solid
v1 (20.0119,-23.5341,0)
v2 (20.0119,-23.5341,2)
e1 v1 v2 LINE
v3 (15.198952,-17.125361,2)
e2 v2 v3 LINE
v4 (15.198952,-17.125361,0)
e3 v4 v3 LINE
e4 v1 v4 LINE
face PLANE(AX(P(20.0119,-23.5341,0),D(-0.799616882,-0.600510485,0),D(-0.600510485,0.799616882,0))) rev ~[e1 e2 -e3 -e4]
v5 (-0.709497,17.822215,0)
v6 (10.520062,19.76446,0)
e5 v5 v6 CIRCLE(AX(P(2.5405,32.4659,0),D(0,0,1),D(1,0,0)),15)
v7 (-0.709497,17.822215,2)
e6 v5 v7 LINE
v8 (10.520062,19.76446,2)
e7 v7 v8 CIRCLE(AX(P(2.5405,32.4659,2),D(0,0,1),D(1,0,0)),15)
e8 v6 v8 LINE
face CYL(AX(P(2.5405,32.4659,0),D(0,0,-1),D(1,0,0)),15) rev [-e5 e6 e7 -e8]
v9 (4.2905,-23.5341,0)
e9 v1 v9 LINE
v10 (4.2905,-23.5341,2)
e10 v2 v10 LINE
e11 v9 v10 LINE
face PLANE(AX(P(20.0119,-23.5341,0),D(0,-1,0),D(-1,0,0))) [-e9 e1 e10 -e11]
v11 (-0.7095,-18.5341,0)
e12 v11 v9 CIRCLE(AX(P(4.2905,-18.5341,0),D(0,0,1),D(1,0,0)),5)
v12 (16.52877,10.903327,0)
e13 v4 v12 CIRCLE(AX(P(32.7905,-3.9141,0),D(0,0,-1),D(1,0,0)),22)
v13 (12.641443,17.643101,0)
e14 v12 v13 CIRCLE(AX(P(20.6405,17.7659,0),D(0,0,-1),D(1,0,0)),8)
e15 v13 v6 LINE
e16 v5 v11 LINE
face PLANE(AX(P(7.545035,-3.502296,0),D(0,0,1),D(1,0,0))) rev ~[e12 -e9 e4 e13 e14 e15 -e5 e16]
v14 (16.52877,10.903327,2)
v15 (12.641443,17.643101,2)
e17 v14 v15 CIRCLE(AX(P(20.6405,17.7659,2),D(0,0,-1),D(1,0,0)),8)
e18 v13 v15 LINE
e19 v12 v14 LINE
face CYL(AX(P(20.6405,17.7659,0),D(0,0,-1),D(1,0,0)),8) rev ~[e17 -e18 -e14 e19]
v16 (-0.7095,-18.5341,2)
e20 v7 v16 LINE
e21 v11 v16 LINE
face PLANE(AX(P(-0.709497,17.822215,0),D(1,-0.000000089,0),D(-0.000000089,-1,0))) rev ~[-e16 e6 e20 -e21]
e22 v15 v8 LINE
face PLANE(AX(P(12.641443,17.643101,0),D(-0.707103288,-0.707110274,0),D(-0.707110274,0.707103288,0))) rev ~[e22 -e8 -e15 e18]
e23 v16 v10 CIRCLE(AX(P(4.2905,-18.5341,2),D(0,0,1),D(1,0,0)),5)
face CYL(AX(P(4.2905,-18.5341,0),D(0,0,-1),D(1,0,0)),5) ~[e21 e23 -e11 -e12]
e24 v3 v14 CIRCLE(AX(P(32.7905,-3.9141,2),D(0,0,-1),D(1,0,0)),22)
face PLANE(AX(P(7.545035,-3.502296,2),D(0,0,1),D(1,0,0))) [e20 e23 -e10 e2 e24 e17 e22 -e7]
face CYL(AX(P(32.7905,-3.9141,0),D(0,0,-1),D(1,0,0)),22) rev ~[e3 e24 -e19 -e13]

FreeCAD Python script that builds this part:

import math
import FreeCAD as App
import Part
import Sketcher

V = App.Vector
Q = App.Units.Quantity

doc = App.newDocument("Part")
body = doc.addObject("PartDesign::Body", "Body")

# Sketch on XY plane
sketch1 = body.newObject("Sketcher::SketchObject", "Sketch")
sketch1.AttachmentSupport = (doc.getObject("XY_Plane"), [""])
sketch1.MapMode = "FlatFace"
sketch1.addGeometry(Part.LineSegment(V(20, -23.5, 0), V(15.2, -17.1, 0)), False)
sketch1.addGeometry(Part.ArcOfCircle(Part.Circle(V(32.8, -3.9, 0), V(0, 0, 1), 22), math.radians(138), math.radians(217)), False)
sketch1.addGeometry(Part.ArcOfCircle(Part.Circle(V(20.6, 17.8, 0), V(0, 0, 1), 8), math.radians(-179), math.radians(-121)), False)
sketch1.addGeometry(Part.LineSegment(V(12.6, 17.6, 0), V(10.5, 19.8, 0)), False)
sketch1.addGeometry(Part.ArcOfCircle(Part.Circle(V(2.5, 32.5, 0), V(0, 0, 1), 15), math.radians(-103), math.radians(-58)), False)
sketch1.addGeometry(Part.LineSegment(V(-0.7, 17.8, 0), V(-0.7, -18.5, 0)), False)
sketch1.addGeometry(Part.ArcOfCircle(Part.Circle(V(4.3, -18.5, 0), V(0, 0, 1), 5), math.radians(180), math.radians(270)), False)
sketch1.addGeometry(Part.LineSegment(V(4.3, -23.5, 0), V(20, -23.5, 0)), False)
sketch1.addConstraint(Sketcher.Constraint("Tangent", 0, 2, 1, 2))
sketch1.addConstraint(Sketcher.Constraint("Coincident", 1, 1, 2, 2))
sketch1.addConstraint(Sketcher.Constraint("Coincident", 2, 1, 3, 1))
sketch1.addConstraint(Sketcher.Constraint("Coincident", 3, 2, 4, 2))
sketch1.addConstraint(Sketcher.Constraint("Coincident", 4, 1, 5, 1))
sketch1.addConstraint(Sketcher.Constraint("Tangent", 5, 2, 6, 1))
sketch1.addConstraint(Sketcher.Constraint("Tangent", 6, 2, 7, 1))
sketch1.addConstraint(Sketcher.Constraint("Coincident", 7, 2, 0, 1))
sketch1.addConstraint(Sketcher.Constraint("Vertical", 5))
sketch1.addConstraint(Sketcher.Constraint("Horizontal", 7))
sketch1.addConstraint(Sketcher.Constraint("Radius", 1, Q("22 mm")))
sketch1.addConstraint(Sketcher.Constraint("Radius", 2, Q("8 mm")))
sketch1.addConstraint(Sketcher.Constraint("Radius", 4, Q("15 mm")))
sketch1.addConstraint(Sketcher.Constraint("Radius", 6, Q("5 mm")))
sketch1.addConstraint(Sketcher.Constraint("Angle", 3, Q("135 deg")))
sketch1.addConstraint(Sketcher.Constraint("Distance", 3, Q("3 mm")))
sketch1.addConstraint(Sketcher.Constraint("DistanceY", 6, 3, 4, 3, Q("51 mm")))
sketch1.addConstraint(Sketcher.Constraint("DistanceX", -1, 1, 1, 3, Q("32.7905 mm")))
sketch1.addConstraint(Sketcher.Constraint("DistanceX", -1, 1, 2, 1, Q("12.6414 mm")))
sketch1.addConstraint(Sketcher.Constraint("DistanceX", 4, 3, 2, 3, Q("18.1 mm")))
sketch1.addConstraint(Sketcher.Constraint("DistanceY", 2, 3, 4, 3, Q("14.7 mm")))
sketch1.addConstraint(Sketcher.Constraint("DistanceX", 6, 3, 1, 3, Q("28.5 mm")))
sketch1.addConstraint(Sketcher.Constraint("DistanceY", 1, 3, 2, 3, Q("21.68 mm")))
sketch1.addConstraint(Sketcher.Constraint("DistanceX", 7, 1, 7, 2, Q("15.7214 mm")))
sketch1.addConstraint(Sketcher.Constraint("DistanceY", 1, 3, -1, 1, Q("3.914 mm")))
pad1 = body.newObject("PartDesign::Pad", "Pad")
pad1.Profile = sketch1
pad1.Length = 2

doc.recompute()
